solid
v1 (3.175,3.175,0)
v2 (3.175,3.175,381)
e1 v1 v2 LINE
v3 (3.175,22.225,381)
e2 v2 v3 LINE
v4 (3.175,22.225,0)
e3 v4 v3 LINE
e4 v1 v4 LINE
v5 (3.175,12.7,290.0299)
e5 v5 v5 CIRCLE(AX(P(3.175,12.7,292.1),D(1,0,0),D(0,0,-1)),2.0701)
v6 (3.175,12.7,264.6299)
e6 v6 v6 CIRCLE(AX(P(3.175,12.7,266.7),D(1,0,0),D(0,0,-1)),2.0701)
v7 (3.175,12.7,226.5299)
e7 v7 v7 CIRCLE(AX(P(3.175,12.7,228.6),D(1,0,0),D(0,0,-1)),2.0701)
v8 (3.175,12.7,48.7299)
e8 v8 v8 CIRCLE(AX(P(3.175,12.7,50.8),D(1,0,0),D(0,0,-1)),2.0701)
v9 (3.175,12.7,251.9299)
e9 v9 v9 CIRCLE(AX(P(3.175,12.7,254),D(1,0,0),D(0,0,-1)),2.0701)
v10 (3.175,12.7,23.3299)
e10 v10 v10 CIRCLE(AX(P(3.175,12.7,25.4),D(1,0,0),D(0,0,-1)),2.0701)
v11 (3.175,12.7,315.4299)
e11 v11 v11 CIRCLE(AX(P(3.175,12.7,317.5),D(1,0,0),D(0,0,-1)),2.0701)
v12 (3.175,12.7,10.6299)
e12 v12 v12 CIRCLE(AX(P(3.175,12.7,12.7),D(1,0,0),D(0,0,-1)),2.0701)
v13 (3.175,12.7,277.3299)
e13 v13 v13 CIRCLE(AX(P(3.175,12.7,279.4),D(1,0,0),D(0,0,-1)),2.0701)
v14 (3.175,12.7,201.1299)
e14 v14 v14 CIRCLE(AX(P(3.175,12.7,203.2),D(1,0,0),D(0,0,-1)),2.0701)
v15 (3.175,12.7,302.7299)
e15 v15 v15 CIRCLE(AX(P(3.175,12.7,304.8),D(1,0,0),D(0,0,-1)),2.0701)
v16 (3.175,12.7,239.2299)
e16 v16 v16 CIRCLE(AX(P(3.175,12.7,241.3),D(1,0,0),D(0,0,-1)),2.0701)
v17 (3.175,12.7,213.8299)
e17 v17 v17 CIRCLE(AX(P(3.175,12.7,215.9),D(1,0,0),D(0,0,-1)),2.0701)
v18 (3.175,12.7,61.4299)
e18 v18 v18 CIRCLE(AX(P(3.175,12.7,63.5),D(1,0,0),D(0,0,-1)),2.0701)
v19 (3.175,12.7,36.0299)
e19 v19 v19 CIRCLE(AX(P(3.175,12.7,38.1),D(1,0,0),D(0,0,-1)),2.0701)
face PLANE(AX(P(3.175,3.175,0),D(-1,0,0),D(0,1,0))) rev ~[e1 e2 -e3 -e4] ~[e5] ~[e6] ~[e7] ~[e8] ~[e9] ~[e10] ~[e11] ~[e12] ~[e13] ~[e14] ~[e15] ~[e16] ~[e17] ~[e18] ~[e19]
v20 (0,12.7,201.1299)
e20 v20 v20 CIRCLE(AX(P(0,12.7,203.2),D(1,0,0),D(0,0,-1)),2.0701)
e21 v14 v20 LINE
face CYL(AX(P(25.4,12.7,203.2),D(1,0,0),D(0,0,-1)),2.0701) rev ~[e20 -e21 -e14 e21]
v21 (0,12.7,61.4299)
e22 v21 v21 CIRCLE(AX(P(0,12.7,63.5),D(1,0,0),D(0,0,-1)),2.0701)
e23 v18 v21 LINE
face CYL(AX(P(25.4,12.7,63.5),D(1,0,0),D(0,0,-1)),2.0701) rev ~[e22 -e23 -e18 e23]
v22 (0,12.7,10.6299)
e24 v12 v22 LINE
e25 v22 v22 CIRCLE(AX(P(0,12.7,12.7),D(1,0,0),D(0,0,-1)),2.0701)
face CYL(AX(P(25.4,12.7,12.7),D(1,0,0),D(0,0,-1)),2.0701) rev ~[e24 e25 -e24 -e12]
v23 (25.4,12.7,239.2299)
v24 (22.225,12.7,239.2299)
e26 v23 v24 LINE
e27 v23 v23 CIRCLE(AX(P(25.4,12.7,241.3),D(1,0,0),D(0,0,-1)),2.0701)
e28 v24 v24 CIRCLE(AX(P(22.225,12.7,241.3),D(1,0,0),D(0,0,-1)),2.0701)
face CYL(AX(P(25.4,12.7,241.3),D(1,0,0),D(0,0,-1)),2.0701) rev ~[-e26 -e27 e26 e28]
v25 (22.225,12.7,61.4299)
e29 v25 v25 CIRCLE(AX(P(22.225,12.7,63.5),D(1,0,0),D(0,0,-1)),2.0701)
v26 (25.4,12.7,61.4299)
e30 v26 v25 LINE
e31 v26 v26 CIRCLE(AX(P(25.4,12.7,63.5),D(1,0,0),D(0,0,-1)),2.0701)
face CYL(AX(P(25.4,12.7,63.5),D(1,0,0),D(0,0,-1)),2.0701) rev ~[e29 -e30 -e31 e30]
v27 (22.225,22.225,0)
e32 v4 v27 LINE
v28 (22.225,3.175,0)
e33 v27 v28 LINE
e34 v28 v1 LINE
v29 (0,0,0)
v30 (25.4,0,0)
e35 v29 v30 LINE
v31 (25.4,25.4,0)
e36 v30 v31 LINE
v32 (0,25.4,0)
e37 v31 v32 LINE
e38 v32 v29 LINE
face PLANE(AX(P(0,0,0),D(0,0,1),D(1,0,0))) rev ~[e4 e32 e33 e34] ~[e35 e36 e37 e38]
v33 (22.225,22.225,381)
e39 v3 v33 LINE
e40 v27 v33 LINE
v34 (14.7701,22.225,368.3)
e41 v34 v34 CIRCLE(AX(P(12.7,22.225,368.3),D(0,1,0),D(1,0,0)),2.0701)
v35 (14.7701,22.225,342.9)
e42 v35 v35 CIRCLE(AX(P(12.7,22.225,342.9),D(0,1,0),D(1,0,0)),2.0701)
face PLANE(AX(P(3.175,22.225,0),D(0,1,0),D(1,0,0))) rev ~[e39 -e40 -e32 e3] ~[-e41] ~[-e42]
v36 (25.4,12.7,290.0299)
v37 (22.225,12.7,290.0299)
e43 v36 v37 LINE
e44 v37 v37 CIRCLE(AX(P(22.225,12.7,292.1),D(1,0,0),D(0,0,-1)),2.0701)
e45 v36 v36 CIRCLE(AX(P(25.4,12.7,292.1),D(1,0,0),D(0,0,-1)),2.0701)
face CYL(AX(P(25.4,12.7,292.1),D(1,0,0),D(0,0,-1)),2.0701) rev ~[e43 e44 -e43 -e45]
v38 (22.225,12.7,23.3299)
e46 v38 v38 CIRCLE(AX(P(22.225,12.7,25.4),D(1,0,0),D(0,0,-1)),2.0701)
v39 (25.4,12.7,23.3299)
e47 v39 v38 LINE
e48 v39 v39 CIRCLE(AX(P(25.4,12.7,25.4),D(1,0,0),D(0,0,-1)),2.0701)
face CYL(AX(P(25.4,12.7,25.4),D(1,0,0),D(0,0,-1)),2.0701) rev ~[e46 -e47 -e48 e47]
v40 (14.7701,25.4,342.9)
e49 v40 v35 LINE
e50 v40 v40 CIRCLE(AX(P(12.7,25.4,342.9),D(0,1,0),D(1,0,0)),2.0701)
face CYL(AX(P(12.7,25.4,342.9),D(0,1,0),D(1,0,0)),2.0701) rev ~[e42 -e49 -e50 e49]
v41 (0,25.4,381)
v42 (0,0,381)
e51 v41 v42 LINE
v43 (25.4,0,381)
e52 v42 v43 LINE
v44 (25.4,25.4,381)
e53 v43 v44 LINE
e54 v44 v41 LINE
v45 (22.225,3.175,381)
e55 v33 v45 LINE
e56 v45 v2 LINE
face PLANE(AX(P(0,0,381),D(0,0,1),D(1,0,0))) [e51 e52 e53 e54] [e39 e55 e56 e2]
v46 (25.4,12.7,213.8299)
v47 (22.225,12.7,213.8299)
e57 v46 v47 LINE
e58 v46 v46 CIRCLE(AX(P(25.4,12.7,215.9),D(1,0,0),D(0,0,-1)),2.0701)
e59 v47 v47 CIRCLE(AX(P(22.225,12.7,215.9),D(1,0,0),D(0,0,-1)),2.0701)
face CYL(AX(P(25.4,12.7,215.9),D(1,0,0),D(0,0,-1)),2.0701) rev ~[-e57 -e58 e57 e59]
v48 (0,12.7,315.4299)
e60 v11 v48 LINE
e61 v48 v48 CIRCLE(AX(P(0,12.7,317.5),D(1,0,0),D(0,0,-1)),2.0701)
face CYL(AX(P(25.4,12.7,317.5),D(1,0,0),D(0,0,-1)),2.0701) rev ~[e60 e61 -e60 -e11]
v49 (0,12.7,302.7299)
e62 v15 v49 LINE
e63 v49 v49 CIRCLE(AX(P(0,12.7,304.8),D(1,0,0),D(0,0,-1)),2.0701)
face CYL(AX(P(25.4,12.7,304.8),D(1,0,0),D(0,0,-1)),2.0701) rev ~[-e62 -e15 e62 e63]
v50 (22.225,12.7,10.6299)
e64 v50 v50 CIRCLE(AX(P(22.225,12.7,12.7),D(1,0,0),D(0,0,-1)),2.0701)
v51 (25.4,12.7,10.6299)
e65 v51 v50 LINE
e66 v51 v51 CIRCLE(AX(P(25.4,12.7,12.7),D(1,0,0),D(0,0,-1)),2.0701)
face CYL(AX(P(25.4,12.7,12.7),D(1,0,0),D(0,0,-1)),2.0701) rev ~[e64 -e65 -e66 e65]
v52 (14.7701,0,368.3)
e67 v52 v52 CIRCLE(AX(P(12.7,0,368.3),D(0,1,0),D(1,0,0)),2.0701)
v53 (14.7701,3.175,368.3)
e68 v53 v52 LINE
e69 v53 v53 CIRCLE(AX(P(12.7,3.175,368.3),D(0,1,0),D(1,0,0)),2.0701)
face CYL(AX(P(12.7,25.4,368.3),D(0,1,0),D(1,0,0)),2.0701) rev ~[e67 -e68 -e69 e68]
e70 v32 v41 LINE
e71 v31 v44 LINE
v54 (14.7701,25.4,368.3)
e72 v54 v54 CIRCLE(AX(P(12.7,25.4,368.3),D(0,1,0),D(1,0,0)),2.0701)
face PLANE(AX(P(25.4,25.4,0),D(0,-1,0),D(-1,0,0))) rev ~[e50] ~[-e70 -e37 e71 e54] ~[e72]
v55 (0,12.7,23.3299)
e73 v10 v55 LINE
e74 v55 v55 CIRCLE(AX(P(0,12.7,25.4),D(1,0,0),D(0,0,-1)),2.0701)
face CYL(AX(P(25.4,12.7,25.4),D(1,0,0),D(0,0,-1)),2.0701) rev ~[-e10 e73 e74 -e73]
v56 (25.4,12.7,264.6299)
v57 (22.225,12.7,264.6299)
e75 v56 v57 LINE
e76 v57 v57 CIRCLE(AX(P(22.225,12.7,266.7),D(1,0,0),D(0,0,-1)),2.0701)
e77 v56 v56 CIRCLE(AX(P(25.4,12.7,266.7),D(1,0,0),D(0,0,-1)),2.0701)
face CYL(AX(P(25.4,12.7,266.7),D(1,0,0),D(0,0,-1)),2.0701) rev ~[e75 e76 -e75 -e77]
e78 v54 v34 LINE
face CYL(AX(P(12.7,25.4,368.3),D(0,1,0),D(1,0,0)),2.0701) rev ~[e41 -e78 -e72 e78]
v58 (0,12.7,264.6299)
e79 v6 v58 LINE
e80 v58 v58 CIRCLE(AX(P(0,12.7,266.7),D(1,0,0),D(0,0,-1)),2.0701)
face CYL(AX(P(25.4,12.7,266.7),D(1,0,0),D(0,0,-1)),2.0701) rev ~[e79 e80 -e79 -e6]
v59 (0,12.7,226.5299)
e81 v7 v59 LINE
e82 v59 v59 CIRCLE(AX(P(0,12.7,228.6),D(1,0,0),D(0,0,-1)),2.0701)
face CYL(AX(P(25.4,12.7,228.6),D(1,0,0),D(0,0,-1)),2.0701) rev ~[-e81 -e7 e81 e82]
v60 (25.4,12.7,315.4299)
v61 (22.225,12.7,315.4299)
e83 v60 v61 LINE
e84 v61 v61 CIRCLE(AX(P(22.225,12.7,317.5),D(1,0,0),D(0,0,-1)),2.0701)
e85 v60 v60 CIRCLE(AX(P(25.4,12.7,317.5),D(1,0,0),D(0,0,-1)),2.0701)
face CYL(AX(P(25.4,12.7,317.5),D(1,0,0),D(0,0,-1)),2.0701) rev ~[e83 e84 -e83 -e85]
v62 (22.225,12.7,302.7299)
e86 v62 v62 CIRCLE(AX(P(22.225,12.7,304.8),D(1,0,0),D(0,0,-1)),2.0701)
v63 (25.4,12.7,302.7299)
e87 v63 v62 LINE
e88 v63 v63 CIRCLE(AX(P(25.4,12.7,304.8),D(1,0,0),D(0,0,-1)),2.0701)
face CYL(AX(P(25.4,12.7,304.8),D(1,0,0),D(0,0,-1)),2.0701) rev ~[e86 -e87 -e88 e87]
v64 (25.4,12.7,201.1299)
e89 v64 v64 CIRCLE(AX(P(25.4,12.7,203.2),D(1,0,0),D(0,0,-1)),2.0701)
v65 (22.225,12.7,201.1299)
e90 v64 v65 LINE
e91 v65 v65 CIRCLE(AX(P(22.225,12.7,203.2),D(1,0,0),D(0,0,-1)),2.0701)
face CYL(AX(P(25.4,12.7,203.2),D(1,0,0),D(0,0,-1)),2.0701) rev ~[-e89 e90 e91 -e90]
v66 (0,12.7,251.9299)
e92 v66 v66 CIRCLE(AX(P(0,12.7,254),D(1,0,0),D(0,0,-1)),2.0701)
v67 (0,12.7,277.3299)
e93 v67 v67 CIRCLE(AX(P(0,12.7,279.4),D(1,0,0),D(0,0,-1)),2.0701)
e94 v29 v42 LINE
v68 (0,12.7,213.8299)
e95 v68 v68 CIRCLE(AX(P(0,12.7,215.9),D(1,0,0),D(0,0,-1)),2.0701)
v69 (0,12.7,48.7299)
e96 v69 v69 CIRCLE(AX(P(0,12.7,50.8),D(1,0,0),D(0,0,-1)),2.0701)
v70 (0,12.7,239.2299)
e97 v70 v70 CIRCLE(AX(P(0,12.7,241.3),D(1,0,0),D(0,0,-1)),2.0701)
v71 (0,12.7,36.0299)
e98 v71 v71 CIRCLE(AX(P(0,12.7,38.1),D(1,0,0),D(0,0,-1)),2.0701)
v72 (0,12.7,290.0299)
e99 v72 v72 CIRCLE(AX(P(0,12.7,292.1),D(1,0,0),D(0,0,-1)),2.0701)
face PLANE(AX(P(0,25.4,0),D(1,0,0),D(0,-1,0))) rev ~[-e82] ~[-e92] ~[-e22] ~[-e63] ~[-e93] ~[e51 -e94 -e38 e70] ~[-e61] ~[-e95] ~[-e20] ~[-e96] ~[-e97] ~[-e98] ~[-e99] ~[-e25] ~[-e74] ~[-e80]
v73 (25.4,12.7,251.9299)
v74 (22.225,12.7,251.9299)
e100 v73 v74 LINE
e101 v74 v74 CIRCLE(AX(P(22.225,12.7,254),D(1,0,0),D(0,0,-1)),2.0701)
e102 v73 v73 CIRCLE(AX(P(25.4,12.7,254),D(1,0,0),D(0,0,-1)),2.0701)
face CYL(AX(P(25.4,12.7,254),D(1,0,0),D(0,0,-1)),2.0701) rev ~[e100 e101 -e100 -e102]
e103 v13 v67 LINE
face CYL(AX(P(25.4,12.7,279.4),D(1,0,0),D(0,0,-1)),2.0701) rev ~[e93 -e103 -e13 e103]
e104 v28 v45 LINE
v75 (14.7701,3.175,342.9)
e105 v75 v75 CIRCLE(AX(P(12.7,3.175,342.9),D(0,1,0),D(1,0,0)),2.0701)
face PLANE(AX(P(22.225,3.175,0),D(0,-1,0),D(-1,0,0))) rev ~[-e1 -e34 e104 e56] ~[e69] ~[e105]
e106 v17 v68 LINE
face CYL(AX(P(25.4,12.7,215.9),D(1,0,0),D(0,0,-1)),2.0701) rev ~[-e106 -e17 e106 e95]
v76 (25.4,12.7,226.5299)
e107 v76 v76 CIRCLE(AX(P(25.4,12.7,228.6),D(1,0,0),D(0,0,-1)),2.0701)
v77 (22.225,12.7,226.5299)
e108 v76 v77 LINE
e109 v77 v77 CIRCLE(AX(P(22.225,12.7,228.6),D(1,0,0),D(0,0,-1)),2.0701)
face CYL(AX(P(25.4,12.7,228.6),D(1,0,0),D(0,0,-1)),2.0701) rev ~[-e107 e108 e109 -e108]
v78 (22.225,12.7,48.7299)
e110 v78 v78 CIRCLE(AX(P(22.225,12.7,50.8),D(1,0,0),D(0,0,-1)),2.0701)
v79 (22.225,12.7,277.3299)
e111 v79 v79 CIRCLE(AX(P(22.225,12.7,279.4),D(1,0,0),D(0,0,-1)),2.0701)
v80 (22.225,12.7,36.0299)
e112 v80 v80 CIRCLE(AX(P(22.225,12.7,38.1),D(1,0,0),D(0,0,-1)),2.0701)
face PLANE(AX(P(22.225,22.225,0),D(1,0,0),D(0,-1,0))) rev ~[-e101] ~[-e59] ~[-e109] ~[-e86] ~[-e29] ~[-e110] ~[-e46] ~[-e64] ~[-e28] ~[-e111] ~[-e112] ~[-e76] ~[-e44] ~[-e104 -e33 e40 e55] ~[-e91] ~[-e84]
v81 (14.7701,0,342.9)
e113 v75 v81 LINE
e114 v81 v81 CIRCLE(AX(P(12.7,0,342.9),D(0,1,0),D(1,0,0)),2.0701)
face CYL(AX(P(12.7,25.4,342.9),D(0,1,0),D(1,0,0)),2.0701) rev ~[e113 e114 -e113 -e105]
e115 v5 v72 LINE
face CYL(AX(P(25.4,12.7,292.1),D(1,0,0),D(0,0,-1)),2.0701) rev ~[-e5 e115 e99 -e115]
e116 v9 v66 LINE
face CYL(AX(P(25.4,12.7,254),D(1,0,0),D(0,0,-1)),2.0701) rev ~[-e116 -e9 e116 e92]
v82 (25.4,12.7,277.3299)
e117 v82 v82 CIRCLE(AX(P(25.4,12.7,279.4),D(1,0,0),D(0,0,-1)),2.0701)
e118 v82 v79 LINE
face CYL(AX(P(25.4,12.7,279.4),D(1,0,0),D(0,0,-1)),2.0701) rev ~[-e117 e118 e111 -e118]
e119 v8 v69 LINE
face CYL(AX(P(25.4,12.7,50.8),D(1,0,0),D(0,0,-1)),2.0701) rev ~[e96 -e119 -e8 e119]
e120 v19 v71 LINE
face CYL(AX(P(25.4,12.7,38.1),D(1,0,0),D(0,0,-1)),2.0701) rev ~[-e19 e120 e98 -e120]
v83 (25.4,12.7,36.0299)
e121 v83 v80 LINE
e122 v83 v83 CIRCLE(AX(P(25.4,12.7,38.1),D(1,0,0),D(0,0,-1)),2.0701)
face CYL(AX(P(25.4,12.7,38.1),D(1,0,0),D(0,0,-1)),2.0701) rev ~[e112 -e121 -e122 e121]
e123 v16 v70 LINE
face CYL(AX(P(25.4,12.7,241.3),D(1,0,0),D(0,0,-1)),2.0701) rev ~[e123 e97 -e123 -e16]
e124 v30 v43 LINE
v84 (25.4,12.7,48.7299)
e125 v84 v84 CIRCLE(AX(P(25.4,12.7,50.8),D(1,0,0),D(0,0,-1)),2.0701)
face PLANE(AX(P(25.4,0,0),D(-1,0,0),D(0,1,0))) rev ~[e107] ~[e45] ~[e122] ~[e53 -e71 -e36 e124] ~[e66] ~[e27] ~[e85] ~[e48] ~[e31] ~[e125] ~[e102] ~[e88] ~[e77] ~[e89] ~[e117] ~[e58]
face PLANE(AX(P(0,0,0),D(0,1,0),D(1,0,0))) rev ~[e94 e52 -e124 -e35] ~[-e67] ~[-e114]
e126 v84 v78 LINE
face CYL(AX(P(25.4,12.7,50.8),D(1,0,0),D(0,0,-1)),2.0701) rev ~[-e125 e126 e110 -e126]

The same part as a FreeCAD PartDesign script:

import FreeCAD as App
import Part
import Sketcher
Q = App.Units.Quantity


def add_polygon(sketch, points):
    """Adds a closed chain of lines whose ends are joined by coincident constraints."""
    first, n = sketch.GeometryCount, len(points)
    for a, b in zip(points, points[1:] + points[:1]):
        sketch.addGeometry(Part.LineSegment(App.Vector(*a, 0), App.Vector(*b, 0)), False)
    for i in range(n):
        sketch.addConstraint(Sketcher.Constraint("Coincident", first + i, 2, first + (i + 1) % n, 1))

doc = App.newDocument("Part")
body = doc.addObject("PartDesign::Body", "Body")

# Sketch on XY plane
sketch1 = body.newObject("Sketcher::SketchObject", "Sketch")
sketch1.AttachmentSupport = (doc.getObject("XY_Plane"), [""])
sketch1.MapMode = "FlatFace"
add_polygon(sketch1, [(0, 25), (0, 0), (25, 0), (25, 25)])  # lines 0-3
add_polygon(sketch1, [(3, 3), (3, 22), (22, 22), (22, 3)])  # lines 4-7
sketch1.addConstraint([
    Sketcher.Constraint("Vertical", 0),
    Sketcher.Constraint("Horizontal", 1),
    Sketcher.Constraint("Vertical", 2),
    Sketcher.Constraint("Horizontal", 3),
    Sketcher.Constraint("Vertical", 4),
    Sketcher.Constraint("Horizontal", 5),
    Sketcher.Constraint("Vertical", 6),
    Sketcher.Constraint("Horizontal", 7),
    Sketcher.Constraint("Coincident", 0, 2, -1, 1),
    Sketcher.Constraint("Equal", 3, 0),
    Sketcher.Constraint("Equal", 7, 4),
    Sketcher.Constraint("DistanceX", 1, 1, 1, 2, Q("1 in")),
    Sketcher.Constraint("DistanceX", -1, 1, 4, 2, Q("0.125 in")),
    Sketcher.Constraint("DistanceY", -1, 1, 6, 2, Q("0.125 in")),
    Sketcher.Constraint("DistanceY", 4, 2, 3, 2, Q("0.125 in")),
])
pad1 = body.newObject("PartDesign::Pad", "Pad")
pad1.Profile = sketch1
pad1.Length = Q("15 in")

# Sketch on YZ plane
sketch2 = body.newObject("Sketcher::SketchObject", "Sketch001")
sketch2.AttachmentSupport = (doc.getObject("YZ_Plane"), [""])
sketch2.MapMode = "FlatFace"
sketch2.AttachmentOffset = App.Placement(App.Vector(0, 0, 1 * 25.4), App.Rotation())
sketch2.addGeometry([
    Part.Circle(App.Vector(12.7, 317.5, 0), App.Vector(0, 0, 1), 2.1),  # 0
    Part.Circle(App.Vector(12.7, 304.8, 0), App.Vector(0, 0, 1), 2.1),  # 1
    Part.Circle(App.Vector(12.7, 292.1, 0), App.Vector(0, 0, 1), 2.1),  # 2
    Part.Circle(App.Vector(12.7, 279.4, 0), App.Vector(0, 0, 1), 2.1),  # 3
    Part.Circle(App.Vector(12.7, 266.7, 0), App.Vector(0, 0, 1), 2.1),  # 4
    Part.Circle(App.Vector(12.7, 254, 0), App.Vector(0, 0, 1), 2.1),  # 5
    Part.Circle(App.Vector(12.7, 241.3, 0), App.Vector(0, 0, 1), 2.1),  # 6
    Part.Circle(App.Vector(12.7, 228.6, 0), App.Vector(0, 0, 1), 2.1),  # 7
    Part.Circle(App.Vector(12.7, 215.9, 0), App.Vector(0, 0, 1), 2.1),  # 8
    Part.Circle(App.Vector(12.7, 203.2, 0), App.Vector(0, 0, 1), 2.1),  # 9
    Part.Circle(App.Vector(12.7, 12.7, 0), App.Vector(0, 0, 1), 2.1),  # 10
    Part.Circle(App.Vector(12.7, 25.4, 0), App.Vector(0, 0, 1), 2.1),  # 11
    Part.Circle(App.Vector(12.7, 38.1, 0), App.Vector(0, 0, 1), 2.1),  # 12
    Part.Circle(App.Vector(12.7, 50.8, 0), App.Vector(0, 0, 1), 2.1),  # 13
    Part.Circle(App.Vector(12.7, 63.5, 0), App.Vector(0, 0, 1), 2.1),  # 14
], False)
sketch2.addConstraint([
    Sketcher.Constraint("Equal", 0, 1),
    Sketcher.Constraint("Equal", 1, 2),
    Sketcher.Constraint("Equal", 2, 3),
    Sketcher.Constraint("Equal", 3, 4),
    Sketcher.Constraint("Equal", 4, 5),
    Sketcher.Constraint("Equal", 5, 6),
    Sketcher.Constraint("Equal", 6, 7),
    Sketcher.Constraint("Equal", 7, 8),
    Sketcher.Constraint("Equal", 8, 9),
    Sketcher.Constraint("Equal", 9, 10),
    Sketcher.Constraint("Equal", 10, 11),
    Sketcher.Constraint("Equal", 11, 12),
    Sketcher.Constraint("Equal", 12, 13),
    Sketcher.Constraint("Equal", 13, 14),
    Sketcher.Constraint("Vertical", 0, 3, 1, 3),
    Sketcher.Constraint("Vertical", 1, 3, 2, 3),
    Sketcher.Constraint("Vertical", 2, 3, 3, 3),
    Sketcher.Constraint("Vertical", 3, 3, 4, 3),
    Sketcher.Constraint("Vertical", 4, 3, 5, 3),
    Sketcher.Constraint("Vertical", 5, 3, 6, 3),
    Sketcher.Constraint("Vertical", 6, 3, 7, 3),
    Sketcher.Constraint("Vertical", 7, 3, 8, 3),
    Sketcher.Constraint("Vertical", 8, 3, 9, 3),
    Sketcher.Constraint("Vertical", 9, 3, 10, 3),
    Sketcher.Constraint("Vertical", 10, 3, 11, 3),
    Sketcher.Constraint("Vertical", 11, 3, 12, 3),
    Sketcher.Constraint("Vertical", 12, 3, 13, 3),
    Sketcher.Constraint("Vertical", 13, 3, 14, 3),
    Sketcher.Constraint("Diameter", 0, Q("0.163 in")),
    Sketcher.Constraint("DistanceY", -1, 1, 11, 3, Q("1 in")),
    Sketcher.Constraint("DistanceY", 2, 3, 0, 3, Q("1 in")),
    Sketcher.Constraint("DistanceY", 3, 3, 1, 3, Q("1 in")),
    Sketcher.Constraint("DistanceY", 4, 3, 2, 3, Q("1 in")),
    Sketcher.Constraint("DistanceY", 5, 3, 3, 3, Q("1 in")),
    Sketcher.Constraint("DistanceY", 6, 3, 4, 3, Q("1 in")),
    Sketcher.Constraint("DistanceY", 7, 3, 5, 3, Q("1 in")),
    Sketcher.Constraint("DistanceY", 8, 3, 6, 3, Q("1 in")),
    Sketcher.Constraint("DistanceY", 9, 3, 7, 3, Q("1 in")),
    Sketcher.Constraint("DistanceY", 10, 3, 12, 3, Q("1 in")),
    Sketcher.Constraint("DistanceY", 11, 3, 13, 3, Q("1 in")),
    Sketcher.Constraint("DistanceY", 12, 3, 14, 3, Q("1 in")),
    Sketcher.Constraint("DistanceX", -1, 1, 0, 3, Q("0.5 in")),
    Sketcher.Constraint("DistanceY", -1, 1, 10, 3, Q("0.5 in")),
    Sketcher.Constraint("DistanceY", 1, 3, 0, 3, Q("0.5 in")),
    Sketcher.Constraint("DistanceY", -1, 1, 1, 3, Q("12 in")),
])
pocket1 = body.newObject("PartDesign::Pocket", "Pocket")
pocket1.Profile = sketch2
pocket1.Length = Q("15 in")

# Sketch on XZ plane
sketch3 = body.newObject("Sketcher::SketchObject", "Sketch002")
sketch3.AttachmentSupport = (doc.getObject("XZ_Plane"), [""])
sketch3.MapMode = "FlatFace"
sketch3.AttachmentOffset = App.Placement(App.Vector(0, 0, -1 * 25.4), App.Rotation())
sketch3.addGeometry([
    Part.Circle(App.Vector(12.7, 368.3, 0), App.Vector(0, 0, 1), 2.1),
    Part.Circle(App.Vector(12.7, 342.9, 0), App.Vector(0, 0, 1), 2.1),
], False)
sketch3.addConstraint([
    Sketcher.Constraint("Equal", 0, 1),
    Sketcher.Constraint("Vertical", 0, 3, 1, 3),
    Sketcher.Constraint("Diameter", 0, Q("0.163 in")),
    Sketcher.Constraint("DistanceY", 1, 3, 0, 3, Q("1 in")),
    Sketcher.Constraint("DistanceX", -1, 1, 0, 3, Q("0.5 in")),
    Sketcher.Constraint("DistanceY", -1, 1, 0, 3, Q("14.5 in")),
])
pocket2 = body.newObject("PartDesign::Pocket", "Pocket001")
pocket2.Profile = sketch3
pocket2.Length = Q("15 in")
pocket2.Reversed = True

doc.recompute()
